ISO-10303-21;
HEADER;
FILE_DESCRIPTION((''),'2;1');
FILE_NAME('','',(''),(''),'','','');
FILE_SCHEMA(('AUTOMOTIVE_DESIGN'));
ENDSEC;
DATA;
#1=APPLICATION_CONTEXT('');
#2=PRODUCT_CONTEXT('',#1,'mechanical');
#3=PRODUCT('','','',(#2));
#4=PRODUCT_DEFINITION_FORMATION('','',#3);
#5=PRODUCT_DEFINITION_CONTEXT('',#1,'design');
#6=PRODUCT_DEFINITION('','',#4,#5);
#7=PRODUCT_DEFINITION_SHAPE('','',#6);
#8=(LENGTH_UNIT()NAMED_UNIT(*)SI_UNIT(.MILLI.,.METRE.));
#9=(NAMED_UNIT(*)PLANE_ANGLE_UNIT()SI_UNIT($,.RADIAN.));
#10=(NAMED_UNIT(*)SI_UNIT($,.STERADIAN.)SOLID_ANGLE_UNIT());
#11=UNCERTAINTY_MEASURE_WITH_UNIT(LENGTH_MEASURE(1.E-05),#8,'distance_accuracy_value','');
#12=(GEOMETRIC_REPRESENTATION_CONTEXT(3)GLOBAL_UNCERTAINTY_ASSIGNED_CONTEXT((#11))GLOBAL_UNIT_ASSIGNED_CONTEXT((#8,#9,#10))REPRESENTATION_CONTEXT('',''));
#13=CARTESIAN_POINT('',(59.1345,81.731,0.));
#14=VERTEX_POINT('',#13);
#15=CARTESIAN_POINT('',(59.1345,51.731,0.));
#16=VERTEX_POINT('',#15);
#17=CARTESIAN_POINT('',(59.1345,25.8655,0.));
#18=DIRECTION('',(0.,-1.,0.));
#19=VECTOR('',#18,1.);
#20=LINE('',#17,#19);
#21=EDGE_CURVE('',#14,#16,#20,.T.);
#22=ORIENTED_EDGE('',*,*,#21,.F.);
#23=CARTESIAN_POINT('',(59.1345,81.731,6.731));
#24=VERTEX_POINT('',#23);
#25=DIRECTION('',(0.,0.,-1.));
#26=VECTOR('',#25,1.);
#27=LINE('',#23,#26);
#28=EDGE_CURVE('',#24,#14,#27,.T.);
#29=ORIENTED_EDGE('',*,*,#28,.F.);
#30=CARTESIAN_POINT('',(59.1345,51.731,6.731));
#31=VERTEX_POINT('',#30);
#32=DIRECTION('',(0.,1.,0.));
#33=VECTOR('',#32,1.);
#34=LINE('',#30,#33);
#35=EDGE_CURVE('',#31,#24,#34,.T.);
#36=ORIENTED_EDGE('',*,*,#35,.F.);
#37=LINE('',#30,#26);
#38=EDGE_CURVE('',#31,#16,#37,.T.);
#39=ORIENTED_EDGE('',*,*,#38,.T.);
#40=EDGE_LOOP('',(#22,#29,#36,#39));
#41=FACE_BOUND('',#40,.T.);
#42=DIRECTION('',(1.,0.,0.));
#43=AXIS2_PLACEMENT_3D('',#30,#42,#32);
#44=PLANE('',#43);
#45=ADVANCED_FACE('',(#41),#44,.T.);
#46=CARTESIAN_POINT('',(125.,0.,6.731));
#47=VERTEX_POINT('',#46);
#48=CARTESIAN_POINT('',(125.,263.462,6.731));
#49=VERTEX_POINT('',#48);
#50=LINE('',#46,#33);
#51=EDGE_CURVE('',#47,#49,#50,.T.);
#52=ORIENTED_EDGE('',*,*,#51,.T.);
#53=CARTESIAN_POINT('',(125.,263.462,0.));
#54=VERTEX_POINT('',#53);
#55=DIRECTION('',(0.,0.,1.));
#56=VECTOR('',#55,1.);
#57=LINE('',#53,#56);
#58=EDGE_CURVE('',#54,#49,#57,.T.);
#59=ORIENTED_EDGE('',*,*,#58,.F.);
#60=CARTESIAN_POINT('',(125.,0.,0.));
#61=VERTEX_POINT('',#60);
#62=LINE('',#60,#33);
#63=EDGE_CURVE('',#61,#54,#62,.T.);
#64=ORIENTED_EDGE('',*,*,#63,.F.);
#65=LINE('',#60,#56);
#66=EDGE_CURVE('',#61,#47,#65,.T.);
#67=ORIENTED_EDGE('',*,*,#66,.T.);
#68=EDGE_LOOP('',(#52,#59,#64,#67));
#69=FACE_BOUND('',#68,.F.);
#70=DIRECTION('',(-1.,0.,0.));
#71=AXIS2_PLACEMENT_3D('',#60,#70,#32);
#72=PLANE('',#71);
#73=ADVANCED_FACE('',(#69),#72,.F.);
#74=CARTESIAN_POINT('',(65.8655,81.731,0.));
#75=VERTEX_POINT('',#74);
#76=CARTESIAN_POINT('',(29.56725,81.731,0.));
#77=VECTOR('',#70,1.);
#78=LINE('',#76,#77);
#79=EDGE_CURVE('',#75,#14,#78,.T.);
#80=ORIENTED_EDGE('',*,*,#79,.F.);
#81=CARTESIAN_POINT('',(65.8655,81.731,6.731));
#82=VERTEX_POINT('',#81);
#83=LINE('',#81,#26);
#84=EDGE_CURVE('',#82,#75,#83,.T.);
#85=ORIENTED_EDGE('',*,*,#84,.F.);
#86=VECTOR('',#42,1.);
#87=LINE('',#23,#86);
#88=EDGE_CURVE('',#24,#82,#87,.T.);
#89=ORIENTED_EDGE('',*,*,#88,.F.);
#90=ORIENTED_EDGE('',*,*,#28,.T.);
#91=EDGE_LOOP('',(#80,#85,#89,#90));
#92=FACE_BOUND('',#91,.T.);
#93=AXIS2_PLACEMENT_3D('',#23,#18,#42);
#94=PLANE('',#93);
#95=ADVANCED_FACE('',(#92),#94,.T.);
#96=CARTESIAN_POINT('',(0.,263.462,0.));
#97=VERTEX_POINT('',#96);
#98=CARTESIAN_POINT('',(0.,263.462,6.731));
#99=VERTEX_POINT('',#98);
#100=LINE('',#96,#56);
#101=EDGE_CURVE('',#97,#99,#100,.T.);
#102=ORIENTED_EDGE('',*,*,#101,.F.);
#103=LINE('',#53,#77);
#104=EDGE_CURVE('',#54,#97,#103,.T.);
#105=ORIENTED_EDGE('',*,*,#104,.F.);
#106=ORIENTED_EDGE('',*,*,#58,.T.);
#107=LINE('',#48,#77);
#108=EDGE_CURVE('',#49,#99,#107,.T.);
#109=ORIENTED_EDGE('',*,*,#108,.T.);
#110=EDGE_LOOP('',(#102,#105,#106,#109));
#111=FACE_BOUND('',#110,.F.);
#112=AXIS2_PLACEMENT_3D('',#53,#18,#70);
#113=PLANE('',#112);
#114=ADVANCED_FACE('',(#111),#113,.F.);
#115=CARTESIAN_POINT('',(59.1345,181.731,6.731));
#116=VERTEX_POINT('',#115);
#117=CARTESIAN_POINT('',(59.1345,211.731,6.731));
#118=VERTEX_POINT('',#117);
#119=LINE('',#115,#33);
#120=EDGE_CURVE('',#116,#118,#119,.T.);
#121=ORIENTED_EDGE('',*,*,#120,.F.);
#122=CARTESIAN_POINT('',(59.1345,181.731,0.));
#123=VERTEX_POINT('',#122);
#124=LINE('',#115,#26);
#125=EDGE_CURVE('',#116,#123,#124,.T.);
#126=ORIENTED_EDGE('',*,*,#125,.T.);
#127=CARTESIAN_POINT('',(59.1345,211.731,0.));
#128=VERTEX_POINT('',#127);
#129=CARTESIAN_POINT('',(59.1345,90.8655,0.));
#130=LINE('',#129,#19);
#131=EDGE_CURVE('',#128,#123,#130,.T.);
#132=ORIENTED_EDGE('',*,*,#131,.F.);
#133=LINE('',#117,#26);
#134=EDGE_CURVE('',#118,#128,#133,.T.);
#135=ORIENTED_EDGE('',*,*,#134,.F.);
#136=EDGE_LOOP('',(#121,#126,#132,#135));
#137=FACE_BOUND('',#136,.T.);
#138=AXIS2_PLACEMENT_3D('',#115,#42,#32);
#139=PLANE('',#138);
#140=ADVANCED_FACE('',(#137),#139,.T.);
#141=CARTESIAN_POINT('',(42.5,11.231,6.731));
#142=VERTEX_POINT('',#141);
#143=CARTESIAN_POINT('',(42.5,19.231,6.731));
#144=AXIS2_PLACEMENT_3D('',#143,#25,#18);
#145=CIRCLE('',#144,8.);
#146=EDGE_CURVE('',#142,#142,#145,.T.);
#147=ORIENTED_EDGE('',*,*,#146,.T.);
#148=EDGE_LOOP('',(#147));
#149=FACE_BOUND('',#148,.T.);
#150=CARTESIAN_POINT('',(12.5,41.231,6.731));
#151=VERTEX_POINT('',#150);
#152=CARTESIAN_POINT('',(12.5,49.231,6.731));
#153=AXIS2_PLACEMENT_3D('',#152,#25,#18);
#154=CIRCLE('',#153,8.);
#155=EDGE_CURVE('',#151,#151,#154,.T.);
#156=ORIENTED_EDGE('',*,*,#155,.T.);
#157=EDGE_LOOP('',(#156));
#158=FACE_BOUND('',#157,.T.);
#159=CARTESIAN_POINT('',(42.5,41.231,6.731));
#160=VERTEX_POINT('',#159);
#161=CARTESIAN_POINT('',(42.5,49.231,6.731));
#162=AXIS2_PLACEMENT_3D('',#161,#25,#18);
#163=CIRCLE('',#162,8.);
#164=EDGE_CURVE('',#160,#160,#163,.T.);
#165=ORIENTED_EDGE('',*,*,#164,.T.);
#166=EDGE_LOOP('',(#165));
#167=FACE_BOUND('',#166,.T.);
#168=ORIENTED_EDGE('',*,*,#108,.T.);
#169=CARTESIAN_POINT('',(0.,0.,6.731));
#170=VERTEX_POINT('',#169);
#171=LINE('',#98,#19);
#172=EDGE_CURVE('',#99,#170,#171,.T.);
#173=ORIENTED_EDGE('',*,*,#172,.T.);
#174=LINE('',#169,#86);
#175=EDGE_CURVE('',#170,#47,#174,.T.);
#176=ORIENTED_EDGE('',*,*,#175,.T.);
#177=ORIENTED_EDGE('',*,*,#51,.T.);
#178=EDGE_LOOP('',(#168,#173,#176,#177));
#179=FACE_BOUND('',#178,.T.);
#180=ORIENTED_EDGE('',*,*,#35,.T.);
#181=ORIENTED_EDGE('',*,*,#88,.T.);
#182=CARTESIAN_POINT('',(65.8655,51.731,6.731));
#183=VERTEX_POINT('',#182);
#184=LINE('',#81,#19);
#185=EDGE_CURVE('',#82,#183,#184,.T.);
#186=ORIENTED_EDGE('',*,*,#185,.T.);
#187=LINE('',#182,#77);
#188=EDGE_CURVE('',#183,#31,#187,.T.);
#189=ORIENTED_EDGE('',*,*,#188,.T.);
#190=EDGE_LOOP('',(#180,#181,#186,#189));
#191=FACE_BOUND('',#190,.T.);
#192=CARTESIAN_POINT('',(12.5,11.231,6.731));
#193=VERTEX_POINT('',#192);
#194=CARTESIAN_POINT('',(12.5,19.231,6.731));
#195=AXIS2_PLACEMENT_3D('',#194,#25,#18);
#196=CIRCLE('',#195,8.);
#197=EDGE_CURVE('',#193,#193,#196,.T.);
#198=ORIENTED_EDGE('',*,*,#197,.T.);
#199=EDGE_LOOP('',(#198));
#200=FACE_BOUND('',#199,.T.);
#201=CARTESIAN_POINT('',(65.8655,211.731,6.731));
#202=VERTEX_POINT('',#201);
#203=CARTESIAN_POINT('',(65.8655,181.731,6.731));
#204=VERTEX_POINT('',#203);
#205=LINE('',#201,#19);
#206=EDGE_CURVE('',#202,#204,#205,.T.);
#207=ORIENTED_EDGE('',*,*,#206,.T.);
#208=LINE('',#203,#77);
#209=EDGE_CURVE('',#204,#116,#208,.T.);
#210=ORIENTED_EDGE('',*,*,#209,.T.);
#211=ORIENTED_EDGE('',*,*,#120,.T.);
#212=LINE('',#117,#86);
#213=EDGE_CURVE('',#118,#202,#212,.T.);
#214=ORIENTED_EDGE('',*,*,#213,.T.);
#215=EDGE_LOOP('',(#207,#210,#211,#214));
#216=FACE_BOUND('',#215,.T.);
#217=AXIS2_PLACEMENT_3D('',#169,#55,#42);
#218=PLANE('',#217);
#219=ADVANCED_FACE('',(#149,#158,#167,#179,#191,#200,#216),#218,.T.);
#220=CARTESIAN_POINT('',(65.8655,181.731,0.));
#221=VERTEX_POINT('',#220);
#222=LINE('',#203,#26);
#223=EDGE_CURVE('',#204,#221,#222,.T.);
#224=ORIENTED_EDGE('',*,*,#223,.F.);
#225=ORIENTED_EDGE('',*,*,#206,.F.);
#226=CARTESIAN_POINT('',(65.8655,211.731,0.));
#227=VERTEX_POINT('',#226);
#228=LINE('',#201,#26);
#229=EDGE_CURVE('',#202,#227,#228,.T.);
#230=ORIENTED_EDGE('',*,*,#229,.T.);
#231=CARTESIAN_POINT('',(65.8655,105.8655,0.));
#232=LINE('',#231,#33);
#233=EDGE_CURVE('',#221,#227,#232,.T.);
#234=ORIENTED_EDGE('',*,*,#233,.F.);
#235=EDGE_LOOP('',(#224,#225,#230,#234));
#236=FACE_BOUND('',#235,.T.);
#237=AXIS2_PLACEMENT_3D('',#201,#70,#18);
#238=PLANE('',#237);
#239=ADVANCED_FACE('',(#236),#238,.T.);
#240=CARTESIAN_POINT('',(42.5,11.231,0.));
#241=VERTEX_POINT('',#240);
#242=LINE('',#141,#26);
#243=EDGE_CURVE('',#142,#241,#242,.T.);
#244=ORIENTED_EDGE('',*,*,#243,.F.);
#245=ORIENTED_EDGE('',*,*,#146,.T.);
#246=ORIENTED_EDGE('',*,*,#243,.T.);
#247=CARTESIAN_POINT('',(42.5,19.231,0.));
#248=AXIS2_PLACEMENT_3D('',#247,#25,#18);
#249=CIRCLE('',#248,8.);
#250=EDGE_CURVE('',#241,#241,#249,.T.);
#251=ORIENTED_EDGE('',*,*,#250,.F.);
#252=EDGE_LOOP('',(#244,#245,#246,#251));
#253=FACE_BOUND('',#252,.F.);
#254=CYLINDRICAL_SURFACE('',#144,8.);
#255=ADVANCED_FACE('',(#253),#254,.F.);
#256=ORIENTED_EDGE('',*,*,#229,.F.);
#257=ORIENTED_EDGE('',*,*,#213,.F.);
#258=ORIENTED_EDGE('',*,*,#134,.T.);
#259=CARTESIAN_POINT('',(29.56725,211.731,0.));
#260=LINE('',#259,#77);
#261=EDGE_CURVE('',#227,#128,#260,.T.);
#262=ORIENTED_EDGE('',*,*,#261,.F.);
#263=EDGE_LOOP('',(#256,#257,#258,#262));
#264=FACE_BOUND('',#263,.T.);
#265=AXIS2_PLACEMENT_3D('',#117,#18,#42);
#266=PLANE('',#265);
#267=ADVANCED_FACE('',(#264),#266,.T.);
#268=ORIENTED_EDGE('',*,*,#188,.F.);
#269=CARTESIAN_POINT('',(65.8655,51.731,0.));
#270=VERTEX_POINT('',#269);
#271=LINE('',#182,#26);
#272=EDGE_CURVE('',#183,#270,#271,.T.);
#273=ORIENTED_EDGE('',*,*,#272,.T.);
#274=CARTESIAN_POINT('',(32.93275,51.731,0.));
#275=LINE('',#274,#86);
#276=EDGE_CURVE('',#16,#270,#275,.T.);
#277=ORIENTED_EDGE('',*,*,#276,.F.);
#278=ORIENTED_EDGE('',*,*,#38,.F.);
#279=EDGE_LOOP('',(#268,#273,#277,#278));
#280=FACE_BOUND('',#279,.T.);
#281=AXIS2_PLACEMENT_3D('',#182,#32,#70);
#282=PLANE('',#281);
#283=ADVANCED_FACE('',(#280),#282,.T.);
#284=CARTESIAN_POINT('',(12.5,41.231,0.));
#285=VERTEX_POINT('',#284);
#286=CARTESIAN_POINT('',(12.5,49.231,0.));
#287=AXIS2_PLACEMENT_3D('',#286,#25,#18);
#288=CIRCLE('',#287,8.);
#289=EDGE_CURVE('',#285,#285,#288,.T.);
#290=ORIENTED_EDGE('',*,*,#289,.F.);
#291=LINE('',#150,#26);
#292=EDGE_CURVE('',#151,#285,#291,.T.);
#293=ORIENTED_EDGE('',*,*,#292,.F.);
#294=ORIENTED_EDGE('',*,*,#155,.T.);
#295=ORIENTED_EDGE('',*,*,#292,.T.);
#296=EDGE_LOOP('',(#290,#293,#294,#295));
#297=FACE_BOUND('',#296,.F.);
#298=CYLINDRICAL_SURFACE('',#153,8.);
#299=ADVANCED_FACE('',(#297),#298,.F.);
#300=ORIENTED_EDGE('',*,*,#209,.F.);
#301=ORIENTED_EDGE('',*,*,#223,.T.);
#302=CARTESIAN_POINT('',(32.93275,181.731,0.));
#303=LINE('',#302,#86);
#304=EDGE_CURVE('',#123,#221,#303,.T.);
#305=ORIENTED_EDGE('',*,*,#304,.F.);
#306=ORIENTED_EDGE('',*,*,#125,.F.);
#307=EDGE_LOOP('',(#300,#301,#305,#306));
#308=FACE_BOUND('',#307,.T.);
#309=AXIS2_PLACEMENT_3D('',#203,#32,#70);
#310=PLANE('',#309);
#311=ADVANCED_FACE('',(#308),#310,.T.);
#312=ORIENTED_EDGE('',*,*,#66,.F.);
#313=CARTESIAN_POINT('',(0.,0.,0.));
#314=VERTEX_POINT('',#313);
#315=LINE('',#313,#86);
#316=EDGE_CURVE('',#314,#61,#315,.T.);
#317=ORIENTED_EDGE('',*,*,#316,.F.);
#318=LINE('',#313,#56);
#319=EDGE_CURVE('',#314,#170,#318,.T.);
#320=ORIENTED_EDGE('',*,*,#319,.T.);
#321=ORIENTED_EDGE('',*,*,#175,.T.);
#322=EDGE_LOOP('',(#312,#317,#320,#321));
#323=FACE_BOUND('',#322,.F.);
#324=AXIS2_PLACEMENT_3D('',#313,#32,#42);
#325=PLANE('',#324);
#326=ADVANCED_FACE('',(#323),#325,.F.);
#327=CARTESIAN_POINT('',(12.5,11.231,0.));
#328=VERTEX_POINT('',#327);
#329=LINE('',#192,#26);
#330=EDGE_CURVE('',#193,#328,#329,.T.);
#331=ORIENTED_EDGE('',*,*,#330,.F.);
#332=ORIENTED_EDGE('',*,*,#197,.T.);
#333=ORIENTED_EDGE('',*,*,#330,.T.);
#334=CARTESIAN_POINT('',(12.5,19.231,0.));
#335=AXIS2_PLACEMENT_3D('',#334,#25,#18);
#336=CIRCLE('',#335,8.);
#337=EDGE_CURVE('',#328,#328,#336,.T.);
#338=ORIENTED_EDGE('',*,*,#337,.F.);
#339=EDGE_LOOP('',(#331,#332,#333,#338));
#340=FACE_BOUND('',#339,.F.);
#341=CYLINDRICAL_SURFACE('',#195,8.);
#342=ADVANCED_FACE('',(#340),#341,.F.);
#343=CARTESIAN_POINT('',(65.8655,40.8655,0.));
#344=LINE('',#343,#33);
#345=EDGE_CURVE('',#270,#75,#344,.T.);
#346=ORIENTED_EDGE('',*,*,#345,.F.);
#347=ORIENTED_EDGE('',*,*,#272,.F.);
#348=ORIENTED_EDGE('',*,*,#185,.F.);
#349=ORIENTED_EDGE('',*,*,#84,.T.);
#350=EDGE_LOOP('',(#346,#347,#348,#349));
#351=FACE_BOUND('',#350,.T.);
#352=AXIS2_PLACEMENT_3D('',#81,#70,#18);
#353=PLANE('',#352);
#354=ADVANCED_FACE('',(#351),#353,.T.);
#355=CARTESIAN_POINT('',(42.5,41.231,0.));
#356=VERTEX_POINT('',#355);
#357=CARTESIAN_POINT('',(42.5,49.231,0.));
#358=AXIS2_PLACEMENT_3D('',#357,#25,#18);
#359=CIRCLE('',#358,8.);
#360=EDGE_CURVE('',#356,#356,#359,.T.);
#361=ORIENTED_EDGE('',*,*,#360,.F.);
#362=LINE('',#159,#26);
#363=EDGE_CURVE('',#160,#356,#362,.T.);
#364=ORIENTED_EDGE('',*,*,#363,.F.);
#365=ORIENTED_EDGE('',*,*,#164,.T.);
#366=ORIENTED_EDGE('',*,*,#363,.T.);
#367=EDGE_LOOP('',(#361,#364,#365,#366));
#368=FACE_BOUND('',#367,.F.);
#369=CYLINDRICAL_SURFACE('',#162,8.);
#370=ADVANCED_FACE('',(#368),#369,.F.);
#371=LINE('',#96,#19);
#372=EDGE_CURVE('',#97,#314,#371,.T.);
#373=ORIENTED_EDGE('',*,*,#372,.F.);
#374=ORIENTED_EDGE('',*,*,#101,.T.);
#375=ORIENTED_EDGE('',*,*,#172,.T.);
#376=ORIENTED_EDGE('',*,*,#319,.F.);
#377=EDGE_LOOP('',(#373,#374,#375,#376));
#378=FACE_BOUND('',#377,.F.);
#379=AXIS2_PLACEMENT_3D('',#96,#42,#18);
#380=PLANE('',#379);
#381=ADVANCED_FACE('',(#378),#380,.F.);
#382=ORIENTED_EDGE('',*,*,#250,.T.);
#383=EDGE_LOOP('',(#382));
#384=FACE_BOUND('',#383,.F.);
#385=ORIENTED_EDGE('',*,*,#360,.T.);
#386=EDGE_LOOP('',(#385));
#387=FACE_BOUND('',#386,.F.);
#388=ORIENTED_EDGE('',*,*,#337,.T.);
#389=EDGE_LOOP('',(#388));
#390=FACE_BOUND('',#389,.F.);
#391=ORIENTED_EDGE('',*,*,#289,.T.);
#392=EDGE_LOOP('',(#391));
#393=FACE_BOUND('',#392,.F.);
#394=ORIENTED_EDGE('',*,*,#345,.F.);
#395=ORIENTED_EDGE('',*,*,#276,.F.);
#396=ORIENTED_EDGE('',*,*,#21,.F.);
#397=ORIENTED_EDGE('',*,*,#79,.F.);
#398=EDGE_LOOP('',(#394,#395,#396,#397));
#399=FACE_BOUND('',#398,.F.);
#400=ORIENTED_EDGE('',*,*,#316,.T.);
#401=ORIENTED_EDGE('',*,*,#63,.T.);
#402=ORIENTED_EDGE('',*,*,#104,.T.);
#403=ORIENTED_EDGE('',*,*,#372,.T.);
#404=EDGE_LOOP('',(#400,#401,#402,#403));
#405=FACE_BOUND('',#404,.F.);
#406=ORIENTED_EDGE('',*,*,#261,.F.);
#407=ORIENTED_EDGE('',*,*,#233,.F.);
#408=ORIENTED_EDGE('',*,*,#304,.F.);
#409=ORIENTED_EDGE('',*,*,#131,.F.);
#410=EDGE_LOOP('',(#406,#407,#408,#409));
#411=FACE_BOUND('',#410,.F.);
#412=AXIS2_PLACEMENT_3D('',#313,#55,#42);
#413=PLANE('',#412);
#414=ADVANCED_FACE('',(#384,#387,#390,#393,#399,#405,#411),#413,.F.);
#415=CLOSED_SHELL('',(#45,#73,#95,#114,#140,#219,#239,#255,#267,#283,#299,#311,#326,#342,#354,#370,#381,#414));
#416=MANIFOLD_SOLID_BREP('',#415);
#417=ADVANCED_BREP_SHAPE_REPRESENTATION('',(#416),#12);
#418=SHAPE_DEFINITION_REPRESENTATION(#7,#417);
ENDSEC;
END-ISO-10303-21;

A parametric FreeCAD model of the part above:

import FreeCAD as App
import Part
import Sketcher

V = App.Vector


def add_polygon(sketch, points):
    """Adds a closed chain of lines whose ends are joined by coincident constraints."""
    first, n = sketch.GeometryCount, len(points)
    for a, b in zip(points, points[1:] + points[:1]):
        sketch.addGeometry(Part.LineSegment(App.Vector(*a, 0), App.Vector(*b, 0)), False)
    for i in range(n):
        sketch.addConstraint(Sketcher.Constraint("Coincident", first + i, 2, first + (i + 1) % n, 1))

doc = App.newDocument("Part")
params = doc.addObject("Spreadsheet::Sheet", "Params")
for row, (alias, value) in enumerate([
    ("sketch1_width", "125 mm"),
    ("pad1_length", "6.731 mm"),
    ("sketch2_height", "30 mm"),
    ("sketch3_diameter", "16 mm"),
    ("hole_diameter", "16 mm"),
], start=1):
    params.set(f"A{row}", alias)
    params.set(f"B{row}", "=" + value)
    params.setAlias(f"B{row}", alias)

body = doc.addObject("PartDesign::Body", "Body")

# Sketch on XY plane
sketch1 = body.newObject("Sketcher::SketchObject", "Sketch")
sketch1.AttachmentSupport = (doc.getObject("XY_Plane"), [""])
sketch1.MapMode = "FlatFace"
add_polygon(sketch1, [(0, 263.462), (0, 0), (125, 0), (125, 263.462)])  # lines 0-3
sketch1.addConstraint([
    Sketcher.Constraint("Vertical", 0),
    Sketcher.Constraint("Horizontal", 1),
    Sketcher.Constraint("Vertical", 2),
    Sketcher.Constraint("Horizontal", 3),
    Sketcher.Constraint("Coincident", 0, 2, -1, 1),
    Sketcher.Constraint("DistanceX", 1, 1, 1, 2, 125.0),
    Sketcher.Constraint("DistanceY", 0, 2, 0, 1, 263.462),
])
sketch1.setExpression("Constraints[9]", "Params.sketch1_width")
pad1 = body.newObject("PartDesign::Pad", "Pad")
pad1.Profile = sketch1
pad1.setExpression("Length", "Params.pad1_length")

# Sketch on XY plane
sketch2 = body.newObject("Sketcher::SketchObject", "Sketch001")
sketch2.AttachmentSupport = (doc.getObject("XY_Plane"), [""])
sketch2.MapMode = "FlatFace"
sketch2.AttachmentOffset = App.Placement(V(0, 0, 6.731), App.Rotation())
add_polygon(sketch2, [(65.8655, 211.731), (59.1345, 211.731), (59.1345, 181.731), (65.8655, 181.731)])  # lines 0-3
add_polygon(sketch2, [(65.8655, 81.731), (59.1345, 81.731), (59.1345, 51.731), (65.8655, 51.731)])  # lines 4-7
sketch2.addConstraint([
    Sketcher.Constraint("Horizontal", 0),
    Sketcher.Constraint("Vertical", 1),
    Sketcher.Constraint("Horizontal", 2),
    Sketcher.Constraint("Vertical", 3),
    Sketcher.Constraint("Horizontal", 4),
    Sketcher.Constraint("Vertical", 5),
    Sketcher.Constraint("Horizontal", 6),
    Sketcher.Constraint("Vertical", 7),
    Sketcher.Constraint("Vertical", 1, 2, 4, 2),
    Sketcher.Constraint("Vertical", 3, 2, 6, 2),
    Sketcher.Constraint("Equal", 3, 5),
    Sketcher.Constraint("DistanceY", 1, 2, 1, 1, 30.0),
    Sketcher.Constraint("DistanceY", 4, 2, 1, 2, 100.0),
    Sketcher.Constraint("DistanceX", 0, 2, 0, 1, 6.731),
    Sketcher.Constraint("DistanceY", -1, 1, 0, 2, 211.731),
    Sketcher.Constraint("DistanceX", -1, 1, 0, 2, 59.1345),
])
sketch2.setExpression("Constraints[19]", "Params.sketch2_height")
pocket1 = body.newObject("PartDesign::Pocket", "Pocket")
pocket1.Profile = sketch2
pocket1.Type = "UpToFirst"

# Sketch on XY plane
sketch3 = body.newObject("Sketcher::SketchObject", "Sketch002")
sketch3.AttachmentSupport = (doc.getObject("XY_Plane"), [""])
sketch3.MapMode = "FlatFace"
sketch3.AttachmentOffset = App.Placement(V(0, 0, 6.731), App.Rotation())
sketch3.addGeometry([
    Part.Circle(V(12.5, 49.231, 0), V(0, 0, 1), 8),
    Part.Circle(V(42.5, 49.231, 0), V(0, 0, 1), 8),
    Part.Circle(V(42.5, 19.231, 0), V(0, 0, 1), 8),
    Part.Circle(V(12.5, 19.231, 0), V(0, 0, 1), 8),
], False)
sketch3.addConstraint([
    Sketcher.Constraint("Equal", 0, 1),
    Sketcher.Constraint("Equal", 1, 2),
    Sketcher.Constraint("Equal", 2, 3),
    Sketcher.Constraint("Horizontal", 0, 3, 1, 3),
    Sketcher.Constraint("Horizontal", 2, 3, 3, 3),
    Sketcher.Constraint("Vertical", 1, 3, 2, 3),
    Sketcher.Constraint("Vertical", 0, 3, 3, 3),
    Sketcher.Constraint("Diameter", 0, 16.0),
    Sketcher.Constraint("DistanceX", 0, 3, 1, 3, 30.0),
    Sketcher.Constraint("DistanceY", 2, 3, 1, 3, 30.0),
    Sketcher.Constraint("DistanceX", -1, 1, 0, 3, 12.5),
    Sketcher.Constraint("DistanceY", -1, 1, 0, 3, 49.231),
])
sketch3.setExpression("Constraints[7]", "Params.sketch3_diameter")
doc.recompute()
hole = body.newObject("PartDesign::Hole", "Hole")
hole.Profile = sketch3
hole.ThreadType = "None"
hole.setExpression("Diameter", "Params.hole_diameter")
hole.DepthType = "ThroughAll"

doc.recompute()
